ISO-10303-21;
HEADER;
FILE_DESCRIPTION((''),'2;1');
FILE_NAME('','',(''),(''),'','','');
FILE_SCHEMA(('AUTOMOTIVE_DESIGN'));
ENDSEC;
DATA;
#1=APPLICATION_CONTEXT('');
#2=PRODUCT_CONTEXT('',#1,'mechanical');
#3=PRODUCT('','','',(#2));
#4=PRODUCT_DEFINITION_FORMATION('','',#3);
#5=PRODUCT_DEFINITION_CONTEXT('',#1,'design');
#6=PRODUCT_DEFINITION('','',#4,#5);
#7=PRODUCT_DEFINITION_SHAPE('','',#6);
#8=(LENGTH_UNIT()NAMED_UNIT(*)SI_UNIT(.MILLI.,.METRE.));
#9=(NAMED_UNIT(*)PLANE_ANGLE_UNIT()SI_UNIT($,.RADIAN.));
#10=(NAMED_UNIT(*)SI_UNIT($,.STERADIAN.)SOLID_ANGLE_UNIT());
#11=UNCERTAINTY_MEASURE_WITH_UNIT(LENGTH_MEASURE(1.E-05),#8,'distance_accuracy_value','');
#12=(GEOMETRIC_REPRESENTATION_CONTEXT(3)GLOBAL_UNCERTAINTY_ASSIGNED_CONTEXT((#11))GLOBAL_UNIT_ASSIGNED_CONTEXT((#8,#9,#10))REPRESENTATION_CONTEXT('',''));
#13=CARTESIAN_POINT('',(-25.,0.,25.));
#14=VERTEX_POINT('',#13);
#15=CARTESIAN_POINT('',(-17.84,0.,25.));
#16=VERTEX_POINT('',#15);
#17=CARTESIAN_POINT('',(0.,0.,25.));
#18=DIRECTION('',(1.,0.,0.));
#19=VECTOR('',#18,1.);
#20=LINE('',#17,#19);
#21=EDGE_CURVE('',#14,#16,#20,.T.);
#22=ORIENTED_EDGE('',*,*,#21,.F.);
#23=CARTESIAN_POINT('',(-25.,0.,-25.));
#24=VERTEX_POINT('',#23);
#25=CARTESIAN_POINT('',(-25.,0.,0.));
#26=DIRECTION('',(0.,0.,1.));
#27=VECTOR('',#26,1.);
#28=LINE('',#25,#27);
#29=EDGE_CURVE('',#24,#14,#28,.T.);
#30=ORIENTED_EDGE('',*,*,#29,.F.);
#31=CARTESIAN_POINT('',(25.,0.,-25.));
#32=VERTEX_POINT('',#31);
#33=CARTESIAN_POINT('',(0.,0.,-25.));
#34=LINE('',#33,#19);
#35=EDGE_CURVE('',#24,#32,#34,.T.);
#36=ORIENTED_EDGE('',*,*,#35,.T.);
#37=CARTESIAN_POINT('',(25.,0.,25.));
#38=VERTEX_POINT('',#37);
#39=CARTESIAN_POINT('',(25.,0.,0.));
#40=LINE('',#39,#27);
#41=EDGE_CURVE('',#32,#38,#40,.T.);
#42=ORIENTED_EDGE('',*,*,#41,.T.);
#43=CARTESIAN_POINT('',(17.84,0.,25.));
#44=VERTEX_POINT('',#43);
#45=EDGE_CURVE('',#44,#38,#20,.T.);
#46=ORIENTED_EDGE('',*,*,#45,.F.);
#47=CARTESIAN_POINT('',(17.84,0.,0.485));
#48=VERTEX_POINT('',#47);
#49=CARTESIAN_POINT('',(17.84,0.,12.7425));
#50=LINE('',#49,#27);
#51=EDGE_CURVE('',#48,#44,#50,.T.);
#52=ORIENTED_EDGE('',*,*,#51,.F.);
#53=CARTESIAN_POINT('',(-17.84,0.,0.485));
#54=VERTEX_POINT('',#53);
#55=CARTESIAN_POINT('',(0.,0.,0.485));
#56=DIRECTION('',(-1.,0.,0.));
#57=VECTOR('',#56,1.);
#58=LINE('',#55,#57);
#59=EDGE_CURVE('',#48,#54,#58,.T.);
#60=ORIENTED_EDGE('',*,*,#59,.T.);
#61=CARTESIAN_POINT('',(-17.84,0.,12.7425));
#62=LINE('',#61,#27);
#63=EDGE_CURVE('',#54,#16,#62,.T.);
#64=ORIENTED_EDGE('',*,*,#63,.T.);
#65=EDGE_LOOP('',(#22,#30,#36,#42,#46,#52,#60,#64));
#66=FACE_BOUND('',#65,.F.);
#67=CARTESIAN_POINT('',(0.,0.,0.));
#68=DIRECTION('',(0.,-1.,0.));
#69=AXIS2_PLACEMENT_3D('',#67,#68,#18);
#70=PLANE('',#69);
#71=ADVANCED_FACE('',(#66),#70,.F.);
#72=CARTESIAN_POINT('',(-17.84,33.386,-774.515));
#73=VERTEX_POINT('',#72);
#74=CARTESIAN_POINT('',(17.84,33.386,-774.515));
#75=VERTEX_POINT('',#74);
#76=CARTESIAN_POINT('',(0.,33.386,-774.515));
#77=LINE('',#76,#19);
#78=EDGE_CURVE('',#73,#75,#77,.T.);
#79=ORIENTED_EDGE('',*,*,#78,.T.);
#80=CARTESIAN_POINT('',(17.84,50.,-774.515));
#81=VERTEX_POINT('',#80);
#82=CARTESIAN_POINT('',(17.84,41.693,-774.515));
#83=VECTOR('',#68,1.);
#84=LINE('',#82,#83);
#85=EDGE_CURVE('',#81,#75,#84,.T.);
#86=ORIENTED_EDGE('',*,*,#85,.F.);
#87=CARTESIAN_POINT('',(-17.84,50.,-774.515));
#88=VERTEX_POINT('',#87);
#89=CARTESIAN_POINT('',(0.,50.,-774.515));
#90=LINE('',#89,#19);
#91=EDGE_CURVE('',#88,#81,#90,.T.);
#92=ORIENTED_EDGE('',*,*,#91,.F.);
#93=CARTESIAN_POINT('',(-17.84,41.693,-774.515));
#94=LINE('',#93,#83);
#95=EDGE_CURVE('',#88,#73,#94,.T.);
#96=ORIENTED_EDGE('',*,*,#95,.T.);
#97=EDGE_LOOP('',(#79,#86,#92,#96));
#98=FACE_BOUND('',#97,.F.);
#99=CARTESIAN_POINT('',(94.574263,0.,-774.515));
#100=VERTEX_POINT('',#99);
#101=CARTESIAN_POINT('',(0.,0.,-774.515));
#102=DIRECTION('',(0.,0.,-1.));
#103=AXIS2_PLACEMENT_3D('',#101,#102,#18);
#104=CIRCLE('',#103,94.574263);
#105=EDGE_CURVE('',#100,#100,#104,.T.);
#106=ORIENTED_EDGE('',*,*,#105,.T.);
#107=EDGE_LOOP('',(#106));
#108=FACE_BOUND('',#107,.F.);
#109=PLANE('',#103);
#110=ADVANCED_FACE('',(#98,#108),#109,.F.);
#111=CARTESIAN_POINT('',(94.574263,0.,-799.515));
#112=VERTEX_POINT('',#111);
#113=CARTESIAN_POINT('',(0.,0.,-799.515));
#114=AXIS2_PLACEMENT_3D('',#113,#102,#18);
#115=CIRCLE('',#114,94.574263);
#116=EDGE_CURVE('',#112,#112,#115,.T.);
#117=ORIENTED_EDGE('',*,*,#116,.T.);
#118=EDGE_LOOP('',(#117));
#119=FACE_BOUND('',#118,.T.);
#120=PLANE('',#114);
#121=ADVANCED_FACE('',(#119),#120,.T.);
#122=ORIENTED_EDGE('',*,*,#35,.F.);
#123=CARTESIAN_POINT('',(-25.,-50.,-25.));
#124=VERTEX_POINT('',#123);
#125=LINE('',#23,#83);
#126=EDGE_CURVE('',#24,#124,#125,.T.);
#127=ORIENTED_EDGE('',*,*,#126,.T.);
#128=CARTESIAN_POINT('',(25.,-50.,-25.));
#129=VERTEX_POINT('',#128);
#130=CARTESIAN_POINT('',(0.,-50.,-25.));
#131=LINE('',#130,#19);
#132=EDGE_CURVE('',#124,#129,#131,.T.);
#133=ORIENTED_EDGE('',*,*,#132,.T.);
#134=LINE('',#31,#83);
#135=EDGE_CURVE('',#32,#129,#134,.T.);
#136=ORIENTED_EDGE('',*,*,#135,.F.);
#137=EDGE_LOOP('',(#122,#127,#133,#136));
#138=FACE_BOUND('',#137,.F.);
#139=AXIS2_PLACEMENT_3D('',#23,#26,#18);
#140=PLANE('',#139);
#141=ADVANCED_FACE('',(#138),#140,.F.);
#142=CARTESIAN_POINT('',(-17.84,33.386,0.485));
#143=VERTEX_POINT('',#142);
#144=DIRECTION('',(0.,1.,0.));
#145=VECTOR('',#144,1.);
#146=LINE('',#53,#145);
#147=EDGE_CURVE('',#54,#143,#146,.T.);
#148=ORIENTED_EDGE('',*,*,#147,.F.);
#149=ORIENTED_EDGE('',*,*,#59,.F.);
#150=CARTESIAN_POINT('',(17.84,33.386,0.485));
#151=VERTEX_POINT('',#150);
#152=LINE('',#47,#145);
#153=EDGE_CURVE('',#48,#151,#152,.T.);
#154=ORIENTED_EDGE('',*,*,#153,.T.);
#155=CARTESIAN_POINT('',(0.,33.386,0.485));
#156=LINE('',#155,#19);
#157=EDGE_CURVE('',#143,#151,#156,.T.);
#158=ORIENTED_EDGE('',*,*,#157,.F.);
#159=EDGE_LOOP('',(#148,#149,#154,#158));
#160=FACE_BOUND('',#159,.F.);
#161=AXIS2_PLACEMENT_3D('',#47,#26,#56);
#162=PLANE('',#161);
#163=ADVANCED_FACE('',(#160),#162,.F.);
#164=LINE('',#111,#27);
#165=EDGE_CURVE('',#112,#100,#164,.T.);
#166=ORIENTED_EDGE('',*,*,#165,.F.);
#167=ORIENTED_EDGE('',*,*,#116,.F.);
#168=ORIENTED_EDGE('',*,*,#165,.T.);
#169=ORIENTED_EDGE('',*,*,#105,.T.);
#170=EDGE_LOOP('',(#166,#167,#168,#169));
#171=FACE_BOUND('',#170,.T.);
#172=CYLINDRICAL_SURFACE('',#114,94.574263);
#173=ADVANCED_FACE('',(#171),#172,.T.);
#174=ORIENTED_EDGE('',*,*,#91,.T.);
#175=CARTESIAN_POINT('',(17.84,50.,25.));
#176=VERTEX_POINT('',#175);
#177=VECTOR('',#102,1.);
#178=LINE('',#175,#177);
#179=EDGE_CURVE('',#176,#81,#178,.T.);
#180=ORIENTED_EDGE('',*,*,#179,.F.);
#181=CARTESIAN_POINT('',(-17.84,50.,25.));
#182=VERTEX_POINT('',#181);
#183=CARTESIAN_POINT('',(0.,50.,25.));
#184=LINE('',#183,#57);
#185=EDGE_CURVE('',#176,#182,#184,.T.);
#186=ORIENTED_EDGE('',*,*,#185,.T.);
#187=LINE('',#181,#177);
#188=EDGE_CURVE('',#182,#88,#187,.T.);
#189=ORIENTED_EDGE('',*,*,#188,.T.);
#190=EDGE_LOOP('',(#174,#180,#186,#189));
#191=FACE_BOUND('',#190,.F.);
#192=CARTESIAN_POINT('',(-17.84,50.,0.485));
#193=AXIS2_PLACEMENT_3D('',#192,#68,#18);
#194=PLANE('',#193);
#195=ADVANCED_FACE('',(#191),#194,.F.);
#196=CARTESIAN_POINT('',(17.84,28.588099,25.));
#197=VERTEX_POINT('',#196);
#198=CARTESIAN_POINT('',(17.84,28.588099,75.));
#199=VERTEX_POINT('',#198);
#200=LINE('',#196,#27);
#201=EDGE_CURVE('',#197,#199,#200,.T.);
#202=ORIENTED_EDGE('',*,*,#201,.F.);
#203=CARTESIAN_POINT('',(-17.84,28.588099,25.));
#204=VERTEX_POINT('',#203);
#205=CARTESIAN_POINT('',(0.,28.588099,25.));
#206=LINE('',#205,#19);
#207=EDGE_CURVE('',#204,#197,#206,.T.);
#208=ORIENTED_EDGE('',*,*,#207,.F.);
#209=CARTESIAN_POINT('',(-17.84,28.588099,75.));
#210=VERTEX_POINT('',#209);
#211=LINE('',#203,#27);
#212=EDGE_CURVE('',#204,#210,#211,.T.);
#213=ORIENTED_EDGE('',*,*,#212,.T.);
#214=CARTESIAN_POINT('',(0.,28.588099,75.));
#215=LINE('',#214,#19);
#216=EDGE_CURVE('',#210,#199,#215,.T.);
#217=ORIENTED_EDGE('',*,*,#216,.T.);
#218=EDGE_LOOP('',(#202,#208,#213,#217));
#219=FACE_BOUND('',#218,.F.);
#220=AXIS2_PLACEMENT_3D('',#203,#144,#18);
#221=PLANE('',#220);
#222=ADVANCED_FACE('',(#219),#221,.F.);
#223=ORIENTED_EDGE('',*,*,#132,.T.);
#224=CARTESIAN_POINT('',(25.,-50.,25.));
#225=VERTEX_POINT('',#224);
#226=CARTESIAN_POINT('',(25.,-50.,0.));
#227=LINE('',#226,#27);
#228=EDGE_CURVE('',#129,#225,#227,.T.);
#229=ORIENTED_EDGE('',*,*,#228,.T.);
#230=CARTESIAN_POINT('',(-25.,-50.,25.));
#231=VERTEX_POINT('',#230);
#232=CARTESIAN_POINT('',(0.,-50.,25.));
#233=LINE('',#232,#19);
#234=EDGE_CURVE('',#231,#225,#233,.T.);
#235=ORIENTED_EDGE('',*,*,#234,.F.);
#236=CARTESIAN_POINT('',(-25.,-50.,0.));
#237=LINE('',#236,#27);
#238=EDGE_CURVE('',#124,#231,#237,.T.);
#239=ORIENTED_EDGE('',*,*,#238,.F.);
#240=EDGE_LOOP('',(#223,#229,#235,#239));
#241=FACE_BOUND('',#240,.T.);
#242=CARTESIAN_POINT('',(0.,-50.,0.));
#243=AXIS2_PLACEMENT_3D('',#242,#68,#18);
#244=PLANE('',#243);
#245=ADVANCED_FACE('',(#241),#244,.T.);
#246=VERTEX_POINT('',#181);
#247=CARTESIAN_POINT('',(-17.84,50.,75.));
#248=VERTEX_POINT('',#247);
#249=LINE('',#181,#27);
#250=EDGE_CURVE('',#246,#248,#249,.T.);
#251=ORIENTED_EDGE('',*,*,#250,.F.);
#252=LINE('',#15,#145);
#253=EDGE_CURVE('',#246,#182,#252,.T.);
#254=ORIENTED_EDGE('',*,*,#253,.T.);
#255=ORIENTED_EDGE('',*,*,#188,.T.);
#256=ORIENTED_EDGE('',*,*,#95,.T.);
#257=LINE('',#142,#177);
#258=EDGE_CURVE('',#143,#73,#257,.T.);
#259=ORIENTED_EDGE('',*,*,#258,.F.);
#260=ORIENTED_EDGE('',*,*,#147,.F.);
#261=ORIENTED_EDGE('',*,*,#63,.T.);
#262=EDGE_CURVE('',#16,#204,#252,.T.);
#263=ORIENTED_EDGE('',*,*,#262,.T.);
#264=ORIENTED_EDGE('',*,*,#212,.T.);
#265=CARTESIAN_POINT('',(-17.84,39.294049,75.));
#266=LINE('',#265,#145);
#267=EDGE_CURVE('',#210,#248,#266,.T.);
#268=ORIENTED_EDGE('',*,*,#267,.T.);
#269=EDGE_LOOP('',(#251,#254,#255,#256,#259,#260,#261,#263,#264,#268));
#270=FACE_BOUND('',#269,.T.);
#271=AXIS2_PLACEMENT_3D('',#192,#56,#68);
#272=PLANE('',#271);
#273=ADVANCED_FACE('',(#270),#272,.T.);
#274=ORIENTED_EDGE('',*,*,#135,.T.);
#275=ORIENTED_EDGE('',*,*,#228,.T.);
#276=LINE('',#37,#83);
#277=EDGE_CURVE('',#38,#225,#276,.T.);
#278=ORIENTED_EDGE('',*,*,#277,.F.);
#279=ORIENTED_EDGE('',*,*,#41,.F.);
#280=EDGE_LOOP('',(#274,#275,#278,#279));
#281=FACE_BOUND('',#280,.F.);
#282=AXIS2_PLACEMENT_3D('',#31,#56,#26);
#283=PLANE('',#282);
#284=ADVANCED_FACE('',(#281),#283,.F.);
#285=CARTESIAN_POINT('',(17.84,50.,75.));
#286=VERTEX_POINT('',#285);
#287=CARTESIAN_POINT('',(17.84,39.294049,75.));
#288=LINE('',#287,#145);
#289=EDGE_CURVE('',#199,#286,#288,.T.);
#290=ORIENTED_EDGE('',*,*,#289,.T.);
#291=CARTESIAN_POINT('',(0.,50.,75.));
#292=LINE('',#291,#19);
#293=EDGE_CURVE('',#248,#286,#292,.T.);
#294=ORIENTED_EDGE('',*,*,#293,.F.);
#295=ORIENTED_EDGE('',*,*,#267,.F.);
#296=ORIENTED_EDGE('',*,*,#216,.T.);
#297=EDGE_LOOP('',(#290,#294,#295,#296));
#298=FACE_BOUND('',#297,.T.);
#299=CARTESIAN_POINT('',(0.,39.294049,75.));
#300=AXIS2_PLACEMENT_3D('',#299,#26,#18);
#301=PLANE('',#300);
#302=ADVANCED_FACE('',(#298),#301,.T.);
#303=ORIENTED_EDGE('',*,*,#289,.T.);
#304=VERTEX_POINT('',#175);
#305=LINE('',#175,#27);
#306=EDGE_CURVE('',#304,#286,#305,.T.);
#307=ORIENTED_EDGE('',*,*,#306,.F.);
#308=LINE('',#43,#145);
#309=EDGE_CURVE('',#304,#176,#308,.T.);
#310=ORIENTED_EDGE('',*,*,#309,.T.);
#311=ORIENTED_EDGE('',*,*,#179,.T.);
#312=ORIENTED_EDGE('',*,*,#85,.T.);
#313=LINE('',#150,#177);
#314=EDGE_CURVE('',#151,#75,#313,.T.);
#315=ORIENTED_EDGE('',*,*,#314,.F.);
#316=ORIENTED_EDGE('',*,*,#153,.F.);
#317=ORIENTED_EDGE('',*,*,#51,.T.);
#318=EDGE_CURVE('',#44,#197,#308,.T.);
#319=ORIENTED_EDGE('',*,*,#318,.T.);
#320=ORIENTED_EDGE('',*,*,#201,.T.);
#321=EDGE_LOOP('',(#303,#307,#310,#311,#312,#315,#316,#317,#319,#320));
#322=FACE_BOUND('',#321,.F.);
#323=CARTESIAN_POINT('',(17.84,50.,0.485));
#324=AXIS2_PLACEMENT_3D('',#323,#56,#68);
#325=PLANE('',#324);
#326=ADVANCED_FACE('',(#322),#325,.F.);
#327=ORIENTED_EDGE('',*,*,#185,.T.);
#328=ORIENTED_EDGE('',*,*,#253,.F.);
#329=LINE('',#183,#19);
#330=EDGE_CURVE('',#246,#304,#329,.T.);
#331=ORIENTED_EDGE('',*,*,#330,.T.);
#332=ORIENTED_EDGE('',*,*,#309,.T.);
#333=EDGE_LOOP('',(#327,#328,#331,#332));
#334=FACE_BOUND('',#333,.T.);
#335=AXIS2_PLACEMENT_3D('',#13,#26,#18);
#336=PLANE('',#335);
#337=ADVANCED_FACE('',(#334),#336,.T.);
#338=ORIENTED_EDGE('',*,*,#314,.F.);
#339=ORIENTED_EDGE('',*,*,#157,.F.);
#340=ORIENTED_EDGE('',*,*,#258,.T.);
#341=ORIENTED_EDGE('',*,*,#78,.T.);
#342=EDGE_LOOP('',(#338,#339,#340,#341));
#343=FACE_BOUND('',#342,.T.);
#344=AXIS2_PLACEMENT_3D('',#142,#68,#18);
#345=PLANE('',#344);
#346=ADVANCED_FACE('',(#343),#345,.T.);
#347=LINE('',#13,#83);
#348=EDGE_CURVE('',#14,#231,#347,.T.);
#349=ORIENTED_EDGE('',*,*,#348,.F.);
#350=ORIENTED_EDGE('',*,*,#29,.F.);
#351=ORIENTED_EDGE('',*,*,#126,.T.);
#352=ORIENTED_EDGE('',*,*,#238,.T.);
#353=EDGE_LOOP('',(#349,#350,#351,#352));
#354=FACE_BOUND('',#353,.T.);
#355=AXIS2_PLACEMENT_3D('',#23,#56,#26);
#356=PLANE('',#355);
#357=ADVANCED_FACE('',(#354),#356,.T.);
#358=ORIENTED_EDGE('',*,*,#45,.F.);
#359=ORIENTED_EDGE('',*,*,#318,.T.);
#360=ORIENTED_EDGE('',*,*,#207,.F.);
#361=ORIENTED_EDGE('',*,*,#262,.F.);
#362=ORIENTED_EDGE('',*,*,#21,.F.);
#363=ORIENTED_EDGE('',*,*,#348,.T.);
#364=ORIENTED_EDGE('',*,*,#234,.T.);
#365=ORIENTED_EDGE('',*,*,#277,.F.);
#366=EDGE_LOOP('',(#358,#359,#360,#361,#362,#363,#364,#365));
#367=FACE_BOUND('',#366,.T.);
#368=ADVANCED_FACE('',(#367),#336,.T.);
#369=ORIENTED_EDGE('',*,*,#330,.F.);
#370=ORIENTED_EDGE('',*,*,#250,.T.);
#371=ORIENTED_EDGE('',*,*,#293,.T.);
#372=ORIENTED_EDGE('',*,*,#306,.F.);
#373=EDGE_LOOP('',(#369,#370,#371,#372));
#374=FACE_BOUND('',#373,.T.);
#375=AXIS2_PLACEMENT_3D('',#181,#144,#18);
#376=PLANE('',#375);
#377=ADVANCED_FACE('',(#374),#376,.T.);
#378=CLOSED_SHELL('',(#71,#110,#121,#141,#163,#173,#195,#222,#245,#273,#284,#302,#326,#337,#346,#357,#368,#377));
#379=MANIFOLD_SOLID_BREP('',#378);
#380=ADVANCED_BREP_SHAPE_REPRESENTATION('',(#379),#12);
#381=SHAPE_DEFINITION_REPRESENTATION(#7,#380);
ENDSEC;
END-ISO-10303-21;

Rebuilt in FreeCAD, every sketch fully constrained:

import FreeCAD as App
import Part
import Sketcher
from FreeCAD import Vector
Q = App.Units.Quantity


def add_polygon(sketch, points):
    """Adds a closed chain of lines whose ends are joined by coincident constraints."""
    first, n = sketch.GeometryCount, len(points)
    for a, b in zip(points, points[1:] + points[:1]):
        sketch.addGeometry(Part.LineSegment(App.Vector(*a, 0), App.Vector(*b, 0)), False)
    for i in range(n):
        sketch.addConstraint(Sketcher.Constraint("Coincident", first + i, 2, first + (i + 1) % n, 1))

doc = App.newDocument("Part")
body = doc.addObject("PartDesign::Body", "Body")

# Sketch on XZ plane
sketch1 = body.newObject("Sketcher::SketchObject", "Sketch")
sketch1.AttachmentSupport = (doc.getObject("XZ_Plane"), [""])
sketch1.MapMode = "FlatFace"
add_polygon(sketch1, [(-25, 25), (-25, -25), (25, -25), (25, 25)])  # lines 0-3
sketch1.addConstraint([
    Sketcher.Constraint("Vertical", 0),
    Sketcher.Constraint("Horizontal", 1),
    Sketcher.Constraint("Vertical", 2),
    Sketcher.Constraint("Horizontal", 3),
    Sketcher.Constraint("Symmetric", 0, 2, 2, 2, -1, 1),
    Sketcher.Constraint("Equal", 3, 0),
    Sketcher.Constraint("DistanceX", 1, 1, 1, 2, Q("50 mm")),
])
pad1 = body.newObject("PartDesign::Pad", "Pad")
pad1.Profile = sketch1
pad1.Length = 50

# Sketch on XZ plane
sketch2 = body.newObject("Sketcher::SketchObject", "Sketch001")
sketch2.AttachmentSupport = (doc.getObject("XZ_Plane"), [""])
sketch2.MapMode = "FlatFace"
add_polygon(sketch2, [(18, 25), (18, 0), (-18, 0), (-18, 25)])  # lines 0-3
sketch2.addConstraint([
    Sketcher.Constraint("Vertical", 0),
    Sketcher.Constraint("Horizontal", 1),
    Sketcher.Constraint("Vertical", 2),
    Sketcher.Constraint("Horizontal", 3),
    Sketcher.Constraint("DistanceY", -1, 1, 2, 2, Q("25 mm")),
    Sketcher.Constraint("DistanceX", 1, 2, 1, 1, Q("35.68 mm")),
    Sketcher.Constraint("DistanceY", 0, 2, 0, 1, Q("24.515 mm")),
    Sketcher.Constraint("DistanceX", -1, 1, 0, 2, Q("17.84 mm")),
])
pad2 = body.newObject("PartDesign::Pad", "Pad001")
pad2.Profile = sketch2
pad2.Length = 50
pad2.Reversed = True

# Sketch on XY plane
sketch3 = body.newObject("Sketcher::SketchObject", "Sketch002")
sketch3.AttachmentSupport = (doc.getObject("XY_Plane"), [""])
sketch3.MapMode = "FlatFace"
sketch3.AttachmentOffset = App.Placement(Vector(0, 0, 25), App.Rotation())
add_polygon(sketch3, [(-18, 50), (-18, 29), (18, 29), (18, 50)])  # lines 0-3
sketch3.addConstraint([
    Sketcher.Constraint("Vertical", 0),
    Sketcher.Constraint("Horizontal", 1),
    Sketcher.Constraint("Vertical", 2),
    Sketcher.Constraint("Horizontal", 3),
    Sketcher.Constraint("DistanceY", -1, 1, 2, 2, Q("50 mm")),
    Sketcher.Constraint("DistanceX", 1, 1, 1, 2, Q("35.68 mm")),
    Sketcher.Constraint("DistanceX", 0, 2, -1, 1, Q("17.84 mm")),
    Sketcher.Constraint("DistanceY", 0, 2, 0, 1, Q("21.411901 mm")),
])
pad3 = body.newObject("PartDesign::Pad", "Pad002")
pad3.Profile = sketch3
pad3.Length = 50

# Sketch on XY plane
sketch4 = body.newObject("Sketcher::SketchObject", "Sketch003")
sketch4.AttachmentSupport = (doc.getObject("XY_Plane"), [""])
sketch4.MapMode = "FlatFace"
sketch4.AttachmentOffset = App.Placement(Vector(0, 0, 0.485), App.Rotation())
add_polygon(sketch4, [(-18, 33), (-18, 50), (18, 50), (18, 33)])  # lines 0-3
sketch4.addConstraint([
    Sketcher.Constraint("Vertical", 0),
    Sketcher.Constraint("Horizontal", 1),
    Sketcher.Constraint("Vertical", 2),
    Sketcher.Constraint("Horizontal", 3),
    Sketcher.Constraint("DistanceY", -1, 1, 0, 2, Q("50 mm")),
    Sketcher.Constraint("DistanceX", 1, 1, 1, 2, Q("35.68 mm")),
    Sketcher.Constraint("DistanceY", 0, 1, 0, 2, Q("16.614 mm")),
    Sketcher.Constraint("DistanceX", 0, 2, -1, 1, Q("17.84 mm")),
])
pad4 = body.newObject("PartDesign::Pad", "Pad003")
pad4.Profile = sketch4
pad4.Length = 800
pad4.Reversed = True

# Sketch on XY plane
sketch5 = body.newObject("Sketcher::SketchObject", "Sketch004")
sketch5.AttachmentSupport = (doc.getObject("XY_Plane"), [""])
sketch5.MapMode = "FlatFace"
sketch5.AttachmentOffset = App.Placement(Vector(0, 0, -799.515), App.Rotation())
sketch5.addGeometry(Part.Circle(Vector(0, 0, 0), Vector(0, 0, 1), 95), False)  # 0
add_polygon(sketch5, [(18, 50), (-18, 50), (-18, 33), (18, 33)])  # lines 1-4
sketch5.addConstraint([
    Sketcher.Constraint("Horizontal", 1),
    Sketcher.Constraint("Vertical", 2),
    Sketcher.Constraint("Horizontal", 3),
    Sketcher.Constraint("Vertical", 4),
    Sketcher.Constraint("Coincident", 0, 3, -1, 1),
    Sketcher.Constraint("DistanceY", -1, 1, 1, 2, Q("50 mm")),
    Sketcher.Constraint("DistanceX", 1, 2, 1, 1, Q("35.68 mm")),
    Sketcher.Constraint("DistanceY", 2, 2, 2, 1, Q("16.614 mm")),
    Sketcher.Constraint("DistanceX", 1, 2, -1, 1, Q("17.84 mm")),
    Sketcher.Constraint("Diameter", 0, Q("189.148526 mm")),
])
pad5 = body.newObject("PartDesign::Pad", "Pad004")
pad5.Profile = sketch5
pad5.Length = 25

doc.recompute()
